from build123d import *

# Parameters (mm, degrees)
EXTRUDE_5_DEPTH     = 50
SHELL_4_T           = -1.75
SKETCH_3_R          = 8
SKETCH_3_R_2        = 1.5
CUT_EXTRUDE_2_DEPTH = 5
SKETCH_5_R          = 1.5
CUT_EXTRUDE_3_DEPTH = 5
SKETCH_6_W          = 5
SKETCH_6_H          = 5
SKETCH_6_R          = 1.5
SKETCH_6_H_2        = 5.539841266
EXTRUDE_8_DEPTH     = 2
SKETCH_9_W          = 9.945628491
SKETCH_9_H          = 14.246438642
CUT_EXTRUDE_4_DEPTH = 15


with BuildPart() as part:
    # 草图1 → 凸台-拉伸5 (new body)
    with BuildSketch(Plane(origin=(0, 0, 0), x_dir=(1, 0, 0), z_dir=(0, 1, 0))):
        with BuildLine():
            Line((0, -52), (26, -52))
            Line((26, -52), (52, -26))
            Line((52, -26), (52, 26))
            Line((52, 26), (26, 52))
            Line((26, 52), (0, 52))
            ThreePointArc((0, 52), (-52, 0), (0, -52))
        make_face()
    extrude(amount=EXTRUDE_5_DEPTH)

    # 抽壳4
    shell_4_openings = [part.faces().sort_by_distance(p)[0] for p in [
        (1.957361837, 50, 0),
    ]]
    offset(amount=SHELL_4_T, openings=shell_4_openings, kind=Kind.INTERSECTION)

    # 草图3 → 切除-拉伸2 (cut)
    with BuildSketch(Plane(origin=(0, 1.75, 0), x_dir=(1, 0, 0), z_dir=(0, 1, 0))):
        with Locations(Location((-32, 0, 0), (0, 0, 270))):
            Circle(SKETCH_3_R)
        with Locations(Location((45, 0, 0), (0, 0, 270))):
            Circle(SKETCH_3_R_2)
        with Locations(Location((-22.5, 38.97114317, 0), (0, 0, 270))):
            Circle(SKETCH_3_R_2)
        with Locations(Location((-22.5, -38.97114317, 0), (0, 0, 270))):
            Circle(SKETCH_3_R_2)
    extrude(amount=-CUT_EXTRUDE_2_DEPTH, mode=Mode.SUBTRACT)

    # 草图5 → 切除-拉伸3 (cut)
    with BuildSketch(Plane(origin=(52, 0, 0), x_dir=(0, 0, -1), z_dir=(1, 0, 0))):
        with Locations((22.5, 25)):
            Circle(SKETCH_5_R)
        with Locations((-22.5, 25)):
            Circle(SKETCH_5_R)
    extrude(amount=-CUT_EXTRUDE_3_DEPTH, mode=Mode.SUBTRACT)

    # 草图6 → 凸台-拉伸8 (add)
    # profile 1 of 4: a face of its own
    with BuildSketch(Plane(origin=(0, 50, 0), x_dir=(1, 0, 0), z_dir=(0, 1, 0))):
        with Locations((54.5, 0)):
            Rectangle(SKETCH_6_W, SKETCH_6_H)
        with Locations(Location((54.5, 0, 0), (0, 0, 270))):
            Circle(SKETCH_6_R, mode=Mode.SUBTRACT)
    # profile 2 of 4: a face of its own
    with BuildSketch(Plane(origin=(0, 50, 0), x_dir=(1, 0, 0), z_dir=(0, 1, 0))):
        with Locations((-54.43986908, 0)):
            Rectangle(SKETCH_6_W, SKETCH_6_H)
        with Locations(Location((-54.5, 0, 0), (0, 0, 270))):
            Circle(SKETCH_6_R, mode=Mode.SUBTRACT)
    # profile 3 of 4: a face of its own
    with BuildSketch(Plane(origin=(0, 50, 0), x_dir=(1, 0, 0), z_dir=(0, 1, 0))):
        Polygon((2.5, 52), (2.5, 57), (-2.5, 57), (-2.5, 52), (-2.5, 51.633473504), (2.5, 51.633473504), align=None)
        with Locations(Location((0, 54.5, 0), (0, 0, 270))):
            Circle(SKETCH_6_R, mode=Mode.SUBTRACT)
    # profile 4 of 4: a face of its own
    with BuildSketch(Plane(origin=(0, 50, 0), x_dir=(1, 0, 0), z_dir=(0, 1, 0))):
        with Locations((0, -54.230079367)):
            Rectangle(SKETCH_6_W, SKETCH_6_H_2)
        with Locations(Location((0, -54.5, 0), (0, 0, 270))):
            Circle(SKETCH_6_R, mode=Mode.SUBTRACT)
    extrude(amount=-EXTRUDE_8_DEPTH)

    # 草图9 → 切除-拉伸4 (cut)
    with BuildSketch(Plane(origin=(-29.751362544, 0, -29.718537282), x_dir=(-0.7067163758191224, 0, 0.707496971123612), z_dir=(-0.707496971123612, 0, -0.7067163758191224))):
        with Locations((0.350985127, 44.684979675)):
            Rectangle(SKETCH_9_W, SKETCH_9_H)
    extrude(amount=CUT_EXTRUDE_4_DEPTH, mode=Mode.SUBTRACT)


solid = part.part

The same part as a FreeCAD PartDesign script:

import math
import FreeCAD as App
import Part
import Sketcher


def faces_at(feature, points):
    """Names of the faces that lie closest to the given points."""
    faces = feature.Shape.Faces
    near = lambda p: min(range(len(faces)), key=lambda i: faces[i].distToShape(Part.Vertex(*p))[0])
    return sorted({f"Face{near(p) + 1}" for p in points})


def add_polygon(sketch, points):
    """Adds a closed chain of lines whose ends are joined by coincident constraints."""
    first, n = sketch.GeometryCount, len(points)
    for a, b in zip(points, points[1:] + points[:1]):
        sketch.addGeometry(Part.LineSegment(App.Vector(*a, 0), App.Vector(*b, 0)), False)
    for i in range(n):
        sketch.addConstraint(Sketcher.Constraint("Coincident", first + i, 2, first + (i + 1) % n, 1))

doc = App.newDocument("Part")
body = doc.addObject("PartDesign::Body", "Body")

sketch1 = body.newObject("Sketcher::SketchObject", "Sketch")
sketch1.AttachmentSupport = (doc.getObject("XZ_Plane"), [""])
sketch1.MapMode = "FlatFace"
sketch1.addGeometry(Part.LineSegment(App.Vector(0, 52, 0), App.Vector(26, 52, 0)), False)
sketch1.addGeometry(Part.LineSegment(App.Vector(26, 52, 0), App.Vector(52, 26, 0)), False)
sketch1.addGeometry(Part.LineSegment(App.Vector(52, 26, 0), App.Vector(52, -26, 0)), False)
sketch1.addGeometry(Part.LineSegment(App.Vector(52, -26, 0), App.Vector(26, -52, 0)), False)
sketch1.addGeometry(Part.LineSegment(App.Vector(26, -52, 0), App.Vector(0, -52, 0)), False)
sketch1.addGeometry(Part.ArcOfCircle(Part.Circle(App.Vector(0, 0, 0), App.Vector(0, 0, 1), 52), math.radians(90), math.radians(270)), False)
sketch1.addConstraint(Sketcher.Constraint("Coincident", 0, 2, 1, 1))
sketch1.addConstraint(Sketcher.Constraint("Coincident", 1, 2, 2, 1))
sketch1.addConstraint(Sketcher.Constraint("Coincident", 2, 2, 3, 1))
sketch1.addConstraint(Sketcher.Constraint("Coincident", 3, 2, 4, 1))
sketch1.addConstraint(Sketcher.Constraint("Tangent", 4, 2, 5, 2))
sketch1.addConstraint(Sketcher.Constraint("Tangent", 5, 1, 0, 1))
sketch1.addConstraint(Sketcher.Constraint("Horizontal", 0))
sketch1.addConstraint(Sketcher.Constraint("Vertical", 2))
sketch1.addConstraint(Sketcher.Constraint("Horizontal", 4))
sketch1.addConstraint(Sketcher.Constraint("Coincident", 5, 3, -1, 1))
sketch1.addConstraint(Sketcher.Constraint("Perpendicular", 1, 3))
sketch1.addConstraint(Sketcher.Constraint("Vertical", 0, 2, 3, 2))
sketch1.addConstraint(Sketcher.Constraint("Equal", 1, 3))
sketch1.addConstraint(Sketcher.Constraint("Radius", 5, 52.0))
sketch1.addConstraint(Sketcher.Constraint("DistanceX", 0, 1, 0, 2, 26.0))
sketch1.addConstraint(Sketcher.Constraint("DistanceY", 2, 2, 2, 1, 52.0))
pad1 = body.newObject("PartDesign::Pad", "Pad")
pad1.Profile = sketch1
pad1.Length = 50
pad1.Reversed = True
doc.recompute()

thickness = body.newObject("PartDesign::Thickness", "Thickness")
thickness.Base = (pad1, faces_at(pad1, [(0, 50, 0)]))
thickness.Value = 1.75
thickness.Reversed = True
thickness.Join = "Intersection"

sketch2 = body.newObject("Sketcher::SketchObject", "Sketch001")
sketch2.AttachmentSupport = (doc.getObject("XZ_Plane"), [""])
sketch2.MapMode = "FlatFace"
sketch2.AttachmentOffset = App.Placement(App.Vector(0, 0, -1.75), App.Rotation())
sketch2.addGeometry(Part.Circle(App.Vector(-32, 0, 0), App.Vector(0, 0, 1), 8), False)
sketch2.addGeometry(Part.Circle(App.Vector(45, 0, 0), App.Vector(0, 0, 1), 1.5), False)
sketch2.addGeometry(Part.Circle(App.Vector(-22.5, -39, 0), App.Vector(0, 0, 1), 1.5), False)
sketch2.addGeometry(Part.Circle(App.Vector(-22.5, 39, 0), App.Vector(0, 0, 1), 1.5), False)
sketch2.addConstraint(Sketcher.Constraint("Equal", 1, 2))
sketch2.addConstraint(Sketcher.Constraint("Equal", 2, 3))
sketch2.addConstraint(Sketcher.Constraint("Symmetric", 2, 3, 3, 3, -1))
sketch2.addConstraint(Sketcher.Constraint("PointOnObject", 0, 3, -1))
sketch2.addConstraint(Sketcher.Constraint("PointOnObject", 1, 3, -1))
sketch2.addConstraint(Sketcher.Constraint("Diameter", 0, 16.0))
sketch2.addConstraint(Sketcher.Constraint("Diameter", 1, 3.0))
sketch2.addConstraint(Sketcher.Constraint("DistanceX", 0, 3, -1, 1, 32.0))
sketch2.addConstraint(Sketcher.Constraint("DistanceX", -1, 1, 1, 3, 45.0))
sketch2.addConstraint(Sketcher.Constraint("DistanceX", 2, 3, -1, 1, 22.5))
sketch2.addConstraint(Sketcher.Constraint("DistanceY", 2, 3, -1, 1, 38.971143))
pocket1 = body.newObject("PartDesign::Pocket", "Pocket")
pocket1.Profile = sketch2
pocket1.Length = 5
pocket1.Reversed = True

sketch3 = body.newObject("Sketcher::SketchObject", "Sketch002")
sketch3.AttachmentSupport = (doc.getObject("YZ_Plane"), [""])
sketch3.MapMode = "FlatFace"
sketch3.AttachmentOffset = App.Placement(App.Vector(0, 0, 52), App.Rotation())
sketch3.addGeometry(Part.Circle(App.Vector(25, -22.5, 0), App.Vector(0, 0, 1), 1.5), False)
sketch3.addGeometry(Part.Circle(App.Vector(25, 22.5, 0), App.Vector(0, 0, 1), 1.5), False)
sketch3.addConstraint(Sketcher.Constraint("Equal", 0, 1))
sketch3.addConstraint(Sketcher.Constraint("Symmetric", 0, 3, 1, 3, -1))
sketch3.addConstraint(Sketcher.Constraint("Diameter", 0, 3.0))
sketch3.addConstraint(Sketcher.Constraint("DistanceX", -1, 1, 0, 3, 25.0))
sketch3.addConstraint(Sketcher.Constraint("DistanceY", 0, 3, 1, 3, 45.0))
pocket2 = body.newObject("PartDesign::Pocket", "Pocket001")
pocket2.Profile = sketch3
pocket2.Length = 5

sketch4 = body.newObject("Sketcher::SketchObject", "Sketch003")
sketch4.AttachmentSupport = (doc.getObject("XZ_Plane"), [""])
sketch4.MapMode = "FlatFace"
sketch4.AttachmentOffset = App.Placement(App.Vector(0, 0, -50), App.Rotation())
add_polygon(sketch4, [(52, -2.5), (52, 2.5), (57, 2.5), (57, -2.5)])
sketch4.addGeometry(Part.Circle(App.Vector(54.5, 0, 0), App.Vector(0, 0, 1), 1.5), False)
add_polygon(sketch4, [(-56.9, -2.5), (-56.9, 2.5), (-51.9, 2.5), (-51.9, -2.5)])
sketch4.addGeometry(Part.Circle(App.Vector(-54.5, 0, 0), App.Vector(0, 0, 1), 1.5), False)
add_polygon(sketch4, [(2.5, -57), (-2.5, -57), (-2.5, -51.6), (2.5, -51.6)])
sketch4.addGeometry(Part.Circle(App.Vector(0, -54.5, 0), App.Vector(0, 0, 1), 1.5), False)
add_polygon(sketch4, [(-2.5, 51.5), (-2.5, 57), (2.5, 57), (2.5, 51.5)])
sketch4.addGeometry(Part.Circle(App.Vector(0, 54.5, 0), App.Vector(0, 0, 1), 1.5), False)
sketch4.addConstraint(Sketcher.Constraint("Vertical", 0))
sketch4.addConstraint(Sketcher.Constraint("Horizontal", 1))
sketch4.addConstraint(Sketcher.Constraint("Vertical", 2))
sketch4.addConstraint(Sketcher.Constraint("Horizontal", 3))
sketch4.addConstraint(Sketcher.Constraint("Vertical", 5))
sketch4.addConstraint(Sketcher.Constraint("Horizontal", 6))
sketch4.addConstraint(Sketcher.Constraint("Vertical", 7))
sketch4.addConstraint(Sketcher.Constraint("Horizontal", 8))
sketch4.addConstraint(Sketcher.Constraint("Horizontal", 10))
sketch4.addConstraint(Sketcher.Constraint("Vertical", 11))
sketch4.addConstraint(Sketcher.Constraint("Horizontal", 12))
sketch4.addConstraint(Sketcher.Constraint("Vertical", 13))
sketch4.addConstraint(Sketcher.Constraint("Vertical", 15))
sketch4.addConstraint(Sketcher.Constraint("Horizontal", 16))
sketch4.addConstraint(Sketcher.Constraint("Vertical", 17))
sketch4.addConstraint(Sketcher.Constraint("Horizontal", 18))
sketch4.addConstraint(Sketcher.Constraint("Equal", 4, 9))
sketch4.addConstraint(Sketcher.Constraint("Equal", 9, 14))
sketch4.addConstraint(Sketcher.Constraint("Equal", 14, 19))
sketch4.addConstraint(Sketcher.Constraint("Symmetric", 4, 3, 9, 3, -1, 1))
sketch4.addConstraint(Sketcher.Constraint("Symmetric", 14, 3, 19, 3, -1, 1))
sketch4.addConstraint(Sketcher.Constraint("Symmetric", 13, 2, 15, 2, -1, 1))
sketch4.addConstraint(Sketcher.Constraint("PointOnObject", 4, 3, -1))
sketch4.addConstraint(Sketcher.Constraint("PointOnObject", 14, 3, -2))
sketch4.addConstraint(Sketcher.Constraint("Horizontal", 1, 2, 5, 2))
sketch4.addConstraint(Sketcher.Constraint("Horizontal", 3, 2, 7, 2))
sketch4.addConstraint(Sketcher.Constraint("Vertical", 11, 2, 15, 2))
sketch4.addConstraint(Sketcher.Constraint("Vertical", 13, 2, 16, 2))
sketch4.addConstraint(Sketcher.Constraint("Equal", 3, 6))
sketch4.addConstraint(Sketcher.Constraint("Equal", 8, 10))
sketch4.addConstraint(Sketcher.Constraint("Equal", 18, 0))
sketch4.addConstraint(Sketcher.Constraint("Diameter", 4, 3.0))
sketch4.addConstraint(Sketcher.Constraint("DistanceX", 1, 1, 1, 2, 5.0))
sketch4.addConstraint(Sketcher.Constraint("DistanceX", -1, 1, 0, 2, 52.0))
sketch4.addConstraint(Sketcher.Constraint("DistanceY", 10, 2, -1, 1, 57.0))
sketch4.addConstraint(Sketcher.Constraint("DistanceX", 9, 3, 4, 3, 109.0))
sketch4.addConstraint(Sketcher.Constraint("DistanceY", 14, 3, 19, 3, 109.0))
sketch4.addConstraint(Sketcher.Constraint("DistanceY", 0, 2, 19, 3, 52.0))
sketch4.addConstraint(Sketcher.Constraint("DistanceY", 15, 1, 15, 2, 5.539841))
sketch4.addConstraint(Sketcher.Constraint("DistanceY", 11, 1, 11, 2, 5.366526))
sketch4.addConstraint(Sketcher.Constraint("DistanceX", 5, 2, -1, 1, 56.939869))
pad2 = body.newObject("PartDesign::Pad", "Pad001")
pad2.Profile = sketch4
pad2.Length = 2

sketch5 = body.newObject("Sketcher::SketchObject", "Sketch004")
sketch5.Placement = App.Placement(App.Vector(-29.751363, 0, -29.718537), App.Rotation(App.Vector(-0.706716376, 0, 0.707496971), App.Vector(0, 1, 0), App.Vector(-0.707496971, 0, -0.706716376), "ZXY"))
add_polygon(sketch5, [(-5, 52), (-5, 38), (5, 38), (5, 52)])
sketch5.addConstraint(Sketcher.Constraint("Vertical", 0))
sketch5.addConstraint(Sketcher.Constraint("Horizontal", 1))
sketch5.addConstraint(Sketcher.Constraint("Vertical", 2))
sketch5.addConstraint(Sketcher.Constraint("Horizontal", 3))
sketch5.addConstraint(Sketcher.Constraint("DistanceX", 1, 1, 1, 2, 9.945628))
sketch5.addConstraint(Sketcher.Constraint("DistanceY", 0, 2, 0, 1, 14.246439))
sketch5.addConstraint(Sketcher.Constraint("DistanceX", -1, 1, 1, 2, 5.323799))
sketch5.addConstraint(Sketcher.Constraint("DistanceY", -1, 1, 2, 2, 51.808199))
pocket3 = body.newObject("PartDesign::Pocket", "Pocket002")
pocket3.Profile = sketch5
pocket3.Length = 15
pocket3.Reversed = True

doc.recompute()
